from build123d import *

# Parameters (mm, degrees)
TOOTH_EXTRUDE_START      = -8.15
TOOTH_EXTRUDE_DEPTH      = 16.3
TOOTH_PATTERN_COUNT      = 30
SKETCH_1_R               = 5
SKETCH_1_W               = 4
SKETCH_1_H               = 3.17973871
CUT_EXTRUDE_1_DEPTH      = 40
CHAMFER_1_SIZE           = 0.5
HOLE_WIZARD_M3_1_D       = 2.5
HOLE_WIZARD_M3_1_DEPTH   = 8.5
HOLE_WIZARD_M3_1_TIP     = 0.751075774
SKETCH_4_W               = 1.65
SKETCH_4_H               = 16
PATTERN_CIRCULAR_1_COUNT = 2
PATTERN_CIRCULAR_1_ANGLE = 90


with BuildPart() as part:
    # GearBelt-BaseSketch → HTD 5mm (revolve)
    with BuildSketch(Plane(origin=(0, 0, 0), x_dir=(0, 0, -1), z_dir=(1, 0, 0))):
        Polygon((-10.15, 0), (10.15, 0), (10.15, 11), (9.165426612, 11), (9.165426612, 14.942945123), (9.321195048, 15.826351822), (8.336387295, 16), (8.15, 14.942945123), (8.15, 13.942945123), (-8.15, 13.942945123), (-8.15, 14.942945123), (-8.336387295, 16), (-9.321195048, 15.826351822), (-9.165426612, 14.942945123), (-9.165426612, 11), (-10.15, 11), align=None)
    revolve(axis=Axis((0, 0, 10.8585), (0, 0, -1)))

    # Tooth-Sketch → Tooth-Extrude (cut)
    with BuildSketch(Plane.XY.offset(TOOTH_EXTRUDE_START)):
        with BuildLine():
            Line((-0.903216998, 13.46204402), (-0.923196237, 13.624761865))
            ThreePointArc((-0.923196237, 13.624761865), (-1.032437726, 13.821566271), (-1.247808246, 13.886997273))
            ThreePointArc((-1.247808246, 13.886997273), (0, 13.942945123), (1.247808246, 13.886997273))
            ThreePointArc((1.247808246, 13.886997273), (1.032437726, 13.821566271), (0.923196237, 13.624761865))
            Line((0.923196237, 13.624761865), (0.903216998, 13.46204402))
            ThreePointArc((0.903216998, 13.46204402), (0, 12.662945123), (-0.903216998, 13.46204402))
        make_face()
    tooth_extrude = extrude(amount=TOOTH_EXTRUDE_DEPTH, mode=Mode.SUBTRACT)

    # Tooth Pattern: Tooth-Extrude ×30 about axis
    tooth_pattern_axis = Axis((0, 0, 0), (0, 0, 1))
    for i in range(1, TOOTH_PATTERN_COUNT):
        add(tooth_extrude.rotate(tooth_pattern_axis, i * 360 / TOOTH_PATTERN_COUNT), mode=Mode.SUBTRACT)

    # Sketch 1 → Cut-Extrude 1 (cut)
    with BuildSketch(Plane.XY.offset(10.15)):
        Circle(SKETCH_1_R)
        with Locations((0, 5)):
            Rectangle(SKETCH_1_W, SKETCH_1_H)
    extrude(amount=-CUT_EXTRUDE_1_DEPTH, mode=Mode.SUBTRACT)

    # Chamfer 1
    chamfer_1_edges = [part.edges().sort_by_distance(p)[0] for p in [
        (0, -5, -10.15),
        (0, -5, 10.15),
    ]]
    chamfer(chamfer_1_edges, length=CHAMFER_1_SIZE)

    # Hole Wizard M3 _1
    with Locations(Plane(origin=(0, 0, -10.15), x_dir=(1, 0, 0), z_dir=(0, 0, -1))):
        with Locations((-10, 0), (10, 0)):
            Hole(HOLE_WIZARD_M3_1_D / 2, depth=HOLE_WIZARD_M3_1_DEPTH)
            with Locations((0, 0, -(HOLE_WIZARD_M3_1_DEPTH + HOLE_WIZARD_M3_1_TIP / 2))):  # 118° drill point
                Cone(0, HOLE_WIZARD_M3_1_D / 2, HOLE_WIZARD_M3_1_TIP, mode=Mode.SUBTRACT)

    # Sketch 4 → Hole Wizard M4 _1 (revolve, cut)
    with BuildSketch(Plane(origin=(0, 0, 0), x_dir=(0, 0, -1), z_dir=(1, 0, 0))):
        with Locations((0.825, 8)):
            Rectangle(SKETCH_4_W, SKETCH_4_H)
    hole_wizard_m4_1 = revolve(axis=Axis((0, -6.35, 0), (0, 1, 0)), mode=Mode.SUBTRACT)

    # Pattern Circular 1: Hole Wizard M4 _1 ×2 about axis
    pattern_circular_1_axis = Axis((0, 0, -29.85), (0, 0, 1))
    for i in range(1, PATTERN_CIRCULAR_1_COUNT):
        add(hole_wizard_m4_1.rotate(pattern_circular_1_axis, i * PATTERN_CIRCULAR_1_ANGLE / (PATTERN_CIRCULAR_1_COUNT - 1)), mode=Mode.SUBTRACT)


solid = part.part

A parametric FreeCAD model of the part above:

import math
import FreeCAD as App
import Part
import Sketcher

V = App.Vector
Q = App.Units.Quantity


def edges_at(feature, points):
    """Names of the edges that pass closest to the given points."""
    edges = feature.Shape.Edges
    near = lambda p: min(range(len(edges)), key=lambda i: edges[i].distToShape(Part.Vertex(*p))[0])
    return sorted({f"Edge{near(p) + 1}" for p in points})

doc = App.newDocument("Part")
body = doc.addObject("PartDesign::Body", "Body")

sketch1 = body.newObject("Sketcher::SketchObject", "Sketch")
sketch1.AttachmentSupport = (doc.getObject("YZ_Plane"), [""])
sketch1.MapMode = "FlatFace"
sketch1.addGeometry([
    Part.LineSegment(V(0, 10.2, 0), V(0, -10.2, 0)),
    Part.LineSegment(V(0, -10.2, 0), V(11, -10.2, 0)),
    Part.LineSegment(V(11, -10.2, 0), V(11, -9.2, 0)),
    Part.LineSegment(V(11, -9.2, 0), V(14.9, -9.2, 0)),
    Part.LineSegment(V(14.9, -9.2, 0), V(15.8, -9.3, 0)),
    Part.LineSegment(V(15.8, -9.3, 0), V(16, -8.3, 0)),
    Part.LineSegment(V(16, -8.3, 0), V(14.9, -8.2, 0)),
    Part.LineSegment(V(14.9, -8.2, 0), V(13.9, -8.2, 0)),
    Part.LineSegment(V(13.9, -8.2, 0), V(13.9, 8.2, 0)),
    Part.LineSegment(V(13.9, 8.2, 0), V(14.9, 8.2, 0)),
    Part.LineSegment(V(14.9, 8.2, 0), V(16, 8.3, 0)),
    Part.LineSegment(V(16, 8.3, 0), V(15.8, 9.3, 0)),
    Part.LineSegment(V(15.8, 9.3, 0), V(14.9, 9.2, 0)),
    Part.LineSegment(V(14.9, 9.2, 0), V(11, 9.2, 0)),
    Part.LineSegment(V(11, 9.2, 0), V(11, 10.2, 0)),
    Part.LineSegment(V(11, 10.2, 0), V(0, 10.2, 0)),
], False)
sketch1.addConstraint([
    Sketcher.Constraint("Coincident", 0, 2, 1, 1),
    Sketcher.Constraint("Coincident", 1, 2, 2, 1),
    Sketcher.Constraint("Coincident", 2, 2, 3, 1),
    Sketcher.Constraint("Coincident", 3, 2, 4, 1),
    Sketcher.Constraint("Coincident", 4, 2, 5, 1),
    Sketcher.Constraint("Coincident", 5, 2, 6, 1),
    Sketcher.Constraint("Coincident", 6, 2, 7, 1),
    Sketcher.Constraint("Coincident", 7, 2, 8, 1),
    Sketcher.Constraint("Coincident", 8, 2, 9, 1),
    Sketcher.Constraint("Coincident", 9, 2, 10, 1),
    Sketcher.Constraint("Coincident", 10, 2, 11, 1),
    Sketcher.Constraint("Coincident", 11, 2, 12, 1),
    Sketcher.Constraint("Coincident", 12, 2, 13, 1),
    Sketcher.Constraint("Coincident", 13, 2, 14, 1),
    Sketcher.Constraint("Coincident", 14, 2, 15, 1),
    Sketcher.Constraint("Coincident", 15, 2, 0, 1),
    Sketcher.Constraint("Vertical", 0),
    Sketcher.Constraint("Horizontal", 1),
    Sketcher.Constraint("Vertical", 2),
    Sketcher.Constraint("Horizontal", 3),
    Sketcher.Constraint("Horizontal", 7),
    Sketcher.Constraint("Vertical", 8),
    Sketcher.Constraint("Horizontal", 9),
    Sketcher.Constraint("Horizontal", 13),
    Sketcher.Constraint("Vertical", 14),
    Sketcher.Constraint("Horizontal", 15),
    Sketcher.Constraint("Symmetric", 0, 2, 15, 2, -1, 1),
    Sketcher.Constraint("Symmetric", 6, 2, 9, 2, -1),
    Sketcher.Constraint("Symmetric", 5, 2, 10, 2, -1),
    Sketcher.Constraint("Symmetric", 4, 2, 11, 2, -1),
    Sketcher.Constraint("Symmetric", 3, 2, 12, 2, -1),
    Sketcher.Constraint("Perpendicular", 4, 5),
    Sketcher.Constraint("Perpendicular", 5, 6),
    Sketcher.Constraint("Vertical", 3, 2, 6, 2),
    Sketcher.Constraint("Vertical", 2, 2, 13, 2),
    Sketcher.Constraint("DistanceX", 1, 1, 1, 2, 11.0),
    Sketcher.Constraint("DistanceX", 7, 2, 7, 1, 1.0),
    Sketcher.Constraint("Angle", 4, Q("-10 deg")),
    Sketcher.Constraint("Distance", 5, 1.0),
    Sketcher.Constraint("DistanceY", 0, 2, 0, 1, 20.3),
    Sketcher.Constraint("DistanceY", 8, 1, 8, 2, 16.3),
    Sketcher.Constraint("DistanceX", -1, 1, 5, 2, 16.0),
    Sketcher.Constraint("Distance", 6, 1.073362),
])
revolution = body.newObject("PartDesign::Revolution", "Revolution")
revolution.Profile = sketch1
revolution.ReferenceAxis = (sketch1, ["V_Axis"])
revolution.Angle = 360

sketch2 = body.newObject("Sketcher::SketchObject", "Sketch001")
sketch2.AttachmentSupport = (doc.getObject("XY_Plane"), [""])
sketch2.MapMode = "FlatFace"
sketch2.AttachmentOffset = App.Placement(V(0, 0, -8.15), App.Rotation())
sketch2.addGeometry([
    Part.LineSegment(V(-0.92, 13.62, 0), V(-0.9, 13.46, 0)),
    Part.ArcOfCircle(Part.Circle(V(0, 13.57, 0), V(0, 0, 1), 0.91), math.radians(-173), math.radians(-7)),
    Part.LineSegment(V(0.9, 13.46, 0), V(0.92, 13.62, 0)),
    Part.ArcOfCircle(Part.Circle(V(1.22, 13.59, 0), V(0, 0, 1), 0.3), math.radians(85), math.radians(173)),
    Part.ArcOfCircle(Part.Circle(V(0, 0, 0), V(0, 0, 1), 13.94), math.radians(84.87), math.radians(95.13)),
    Part.ArcOfCircle(Part.Circle(V(-1.22, 13.59, 0), V(0, 0, 1), 0.3), math.radians(7), math.radians(95)),
], False)
sketch2.addConstraint([
    Sketcher.Constraint("Tangent", 0, 2, 1, 1),
    Sketcher.Constraint("Tangent", 1, 2, 2, 1),
    Sketcher.Constraint("Tangent", 2, 2, 3, 2),
    Sketcher.Constraint("Tangent", 3, 1, 4, 1),
    Sketcher.Constraint("Tangent", 4, 2, 5, 2),
    Sketcher.Constraint("Tangent", 5, 1, 0, 1),
    Sketcher.Constraint("Coincident", 4, 3, -1, 1),
    Sketcher.Constraint("Equal", 3, 5),
    Sketcher.Constraint("Symmetric", 0, 2, 1, 2, -2),
    Sketcher.Constraint("Radius", 3, 0.3),
    Sketcher.Constraint("Angle", 0, Q("-83 deg")),
    Sketcher.Constraint("Radius", 1, 0.91),
    Sketcher.Constraint("Radius", 4, 13.942945),
    Sketcher.Constraint("DistanceY", -1, 1, 3, 3, 13.588201),
])
pocket1 = body.newObject("PartDesign::Pocket", "Pocket")
pocket1.Profile = sketch2
pocket1.Length = 16.3
pocket1.Reversed = True
doc.recompute()

polarpattern = body.newObject("PartDesign::PolarPattern", "PolarPattern")
polarpattern.Originals = [pocket1]
polarpattern.Axis = (doc.getObject("Z_Axis"), [""])
polarpattern.Angle = 360
polarpattern.Occurrences = 30
body.Tip = polarpattern

sketch3 = body.newObject("Sketcher::SketchObject", "Sketch002")
sketch3.AttachmentSupport = (doc.getObject("XY_Plane"), [""])
sketch3.MapMode = "FlatFace"
sketch3.AttachmentOffset = App.Placement(V(0, 0, 10.15), App.Rotation())
sketch3.addGeometry([
    Part.ArcOfCircle(Part.Circle(V(0, 0, 0), V(0, 0, 1), 5), math.radians(114), math.radians(426)),
    Part.LineSegment(V(2, 4.6, 0), V(2, 6.6, 0)),
    Part.LineSegment(V(2, 6.6, 0), V(-2, 6.6, 0)),
    Part.LineSegment(V(-2, 6.6, 0), V(-2, 4.6, 0)),
], False)
sketch3.addConstraint([
    Sketcher.Constraint("Coincident", 0, 2, 1, 1),
    Sketcher.Constraint("Coincident", 1, 2, 2, 1),
    Sketcher.Constraint("Coincident", 2, 2, 3, 1),
    Sketcher.Constraint("Coincident", 3, 2, 0, 1),
    Sketcher.Constraint("Vertical", 1),
    Sketcher.Constraint("Horizontal", 2),
    Sketcher.Constraint("Vertical", 3),
    Sketcher.Constraint("Coincident", 0, 3, -1, 1),
    Sketcher.Constraint("Horizontal", 0, 2, 3, 2),
    Sketcher.Constraint("Radius", 0, 5.0),
    Sketcher.Constraint("DistanceX", 2, 2, 2, 1, 4.0),
    Sketcher.Constraint("DistanceY", 1, 1, 1, 2, 2.007294),
])
pocket2 = body.newObject("PartDesign::Pocket", "Pocket001")
pocket2.Profile = sketch3
pocket2.Length = 40
doc.recompute()

chamfer = body.newObject("PartDesign::Chamfer", "Chamfer")
chamfer.Base = (pocket2, edges_at(pocket2, [(0, -5, -10.15), (0, -5, 10.15)]))
chamfer.Size = 0.5

sketch4 = body.newObject("Sketcher::SketchObject", "Sketch003")
sketch4.AttachmentSupport = (doc.getObject("XY_Plane"), [""])
sketch4.MapMode = "FlatFace"
sketch4.AttachmentOffset = App.Placement(V(0, 0, -10.15), App.Rotation())
sketch4.addGeometry([
    Part.Circle(V(-10, 0, 0), V(0, 0, 1), 1.2),
    Part.Circle(V(10, 0, 0), V(0, 0, 1), 1.2),
], False)
sketch4.addConstraint([
    Sketcher.Constraint("Equal", 0, 1),
    Sketcher.Constraint("Symmetric", 0, 3, 1, 3, -1, 1),
    Sketcher.Constraint("PointOnObject", 0, 3, -1),
    Sketcher.Constraint("Diameter", 0, 2.5),
    Sketcher.Constraint("DistanceX", 0, 3, -1, 1, 10.0),
])
doc.recompute()
hole = body.newObject("PartDesign::Hole", "Hole")
hole.Profile = sketch4
hole.ThreadType = "None"
hole.Diameter = 2.5
hole.DepthType = "Dimension"
hole.Depth = 8.5
hole.DrillPoint = "Angled"
hole.DrillPointAngle = 118
hole.Reversed = True

sketch5 = body.newObject("Sketcher::SketchObject", "Sketch004")
sketch5.AttachmentSupport = (doc.getObject("YZ_Plane"), [""])
sketch5.MapMode = "FlatFace"
sketch5.addGeometry([
    Part.LineSegment(V(16, 0, 0), V(0, 0, 0)),
    Part.LineSegment(V(0, 0, 0), V(0, -1.6, 0)),
    Part.LineSegment(V(0, -1.6, 0), V(16, -1.6, 0)),
    Part.LineSegment(V(16, -1.6, 0), V(16, 0, 0)),
], False)
sketch5.addConstraint([
    Sketcher.Constraint("Coincident", 0, 2, 1, 1),
    Sketcher.Constraint("Coincident", 1, 2, 2, 1),
    Sketcher.Constraint("Coincident", 2, 2, 3, 1),
    Sketcher.Constraint("Coincident", 3, 2, 0, 1),
    Sketcher.Constraint("Horizontal", 0),
    Sketcher.Constraint("Vertical", 1),
    Sketcher.Constraint("Horizontal", 2),
    Sketcher.Constraint("Vertical", 3),
    Sketcher.Constraint("Coincident", 0, 2, -1, 1),
    Sketcher.Constraint("DistanceX", 0, 2, 0, 1, 16.0),
    Sketcher.Constraint("DistanceY", 1, 2, 1, 1, 1.65),
])
groove = body.newObject("PartDesign::Groove", "Groove")
groove.Profile = sketch5
groove.ReferenceAxis = (sketch5, ["H_Axis"])
groove.Angle = 360
doc.recompute()

polarpattern2 = body.newObject("PartDesign::PolarPattern", "PolarPattern001")
polarpattern2.Originals = [groove]
polarpattern2.Axis = (doc.getObject("Z_Axis"), [""])
polarpattern2.Angle = 90
polarpattern2.Occurrences = 2
body.Tip = polarpattern2

doc.recompute()
